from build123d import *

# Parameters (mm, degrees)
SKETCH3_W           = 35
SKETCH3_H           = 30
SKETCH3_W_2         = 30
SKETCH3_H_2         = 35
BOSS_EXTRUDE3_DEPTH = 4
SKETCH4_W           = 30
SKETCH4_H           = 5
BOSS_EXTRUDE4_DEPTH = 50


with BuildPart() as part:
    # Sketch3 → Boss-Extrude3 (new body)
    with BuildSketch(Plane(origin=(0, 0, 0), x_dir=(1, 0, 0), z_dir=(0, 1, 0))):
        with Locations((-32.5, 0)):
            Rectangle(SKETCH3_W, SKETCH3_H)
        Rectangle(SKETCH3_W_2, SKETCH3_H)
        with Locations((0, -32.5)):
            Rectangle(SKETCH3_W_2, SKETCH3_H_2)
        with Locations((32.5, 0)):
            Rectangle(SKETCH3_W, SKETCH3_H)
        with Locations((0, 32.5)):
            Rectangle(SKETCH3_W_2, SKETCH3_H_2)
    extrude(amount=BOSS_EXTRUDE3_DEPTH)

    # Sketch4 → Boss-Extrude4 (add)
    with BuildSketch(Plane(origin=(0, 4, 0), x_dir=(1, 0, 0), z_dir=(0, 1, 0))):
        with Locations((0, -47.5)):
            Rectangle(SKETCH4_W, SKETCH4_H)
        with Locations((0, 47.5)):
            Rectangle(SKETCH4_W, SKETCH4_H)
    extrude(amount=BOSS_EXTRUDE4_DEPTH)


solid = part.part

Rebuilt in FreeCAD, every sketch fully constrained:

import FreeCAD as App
import Part
import Sketcher

V = App.Vector


def add_polygon(sketch, points):
    """Adds a closed chain of lines whose ends are joined by coincident constraints."""
    first, n = sketch.GeometryCount, len(points)
    for a, b in zip(points, points[1:] + points[:1]):
        sketch.addGeometry(Part.LineSegment(App.Vector(*a, 0), App.Vector(*b, 0)), False)
    for i in range(n):
        sketch.addConstraint(Sketcher.Constraint("Coincident", first + i, 2, first + (i + 1) % n, 1))

doc = App.newDocument("Part")
body = doc.addObject("PartDesign::Body", "Body")

# Sketch on XZ plane
sketch1 = doc.addObject("Sketcher::SketchObject", "Sketch")
body.addObject(sketch1)
sketch1.AttachmentSupport = (doc.XZ_Plane, [""])
sketch1.MapMode = "FlatFace"
add_polygon(sketch1, [(-50, -15), (-50, 15), (-15, 15), (-15, 50), (15, 50), (15, 15), (50, 15), (50, -15), (15, -15), (15, -50), (-15, -50), (-15, -15)])  # lines 0-11
sketch1.addConstraint([
    Sketcher.Constraint("Vertical", 0),
    Sketcher.Constraint("Horizontal", 1),
    Sketcher.Constraint("Vertical", 2),
    Sketcher.Constraint("Horizontal", 3),
    Sketcher.Constraint("Vertical", 4),
    Sketcher.Constraint("Horizontal", 5),
    Sketcher.Constraint("Vertical", 6),
    Sketcher.Constraint("Horizontal", 7),
    Sketcher.Constraint("Vertical", 8),
    Sketcher.Constraint("Horizontal", 9),
    Sketcher.Constraint("Vertical", 10),
    Sketcher.Constraint("Horizontal", 11),
    Sketcher.Constraint("Symmetric", 0, 2, 6, 2, -1, 1),
    Sketcher.Constraint("Symmetric", 2, 2, 8, 2, -1, 1),
    Sketcher.Constraint("Symmetric", 4, 2, 10, 2, -1, 1),
    Sketcher.Constraint("Symmetric", 1, 2, 4, 2, -2),
    Sketcher.Constraint("Equal", 9, 0),
    Sketcher.Constraint("Equal", 11, 2),
    Sketcher.Constraint("DistanceX", 1, 1, 1, 2, 35.0),
    Sketcher.Constraint("DistanceX", 3, 1, 3, 2, 30.0),
])
pad1 = doc.addObject("PartDesign::Pad", "Pad")
body.addObject(pad1)
pad1.Profile = sketch1
pad1.Length = 4
pad1.Reversed = True

# Sketch on XZ plane
sketch2 = doc.addObject("Sketcher::SketchObject", "Sketch001")
body.addObject(sketch2)
sketch2.AttachmentSupport = (doc.XZ_Plane, [""])
sketch2.MapMode = "FlatFace"
sketch2.AttachmentOffset = App.Placement(V(0, 0, -4), App.Rotation())
add_polygon(sketch2, [(-15, 45), (-15, 50), (15, 50), (15, 45)])  # lines 0-3
add_polygon(sketch2, [(-15, -50), (-15, -45), (15, -45), (15, -50)])  # lines 4-7
sketch2.addConstraint([
    Sketcher.Constraint("Vertical", 0),
    Sketcher.Constraint("Horizontal", 1),
    Sketcher.Constraint("Vertical", 2),
    Sketcher.Constraint("Horizontal", 3),
    Sketcher.Constraint("Vertical", 4),
    Sketcher.Constraint("Horizontal", 5),
    Sketcher.Constraint("Vertical", 6),
    Sketcher.Constraint("Horizontal", 7),
    Sketcher.Constraint("Symmetric", 2, 2, 4, 2, -1, 1),
    Sketcher.Constraint("Symmetric", 0, 2, 6, 2, -1, 1),
    Sketcher.Constraint("Vertical", 3, 2, 4, 2),
    Sketcher.Constraint("DistanceX", 1, 1, 1, 2, 30.0),
    Sketcher.Constraint("DistanceY", 0, 1, 0, 2, 5.0),
    Sketcher.Constraint("DistanceY", -1, 1, 0, 2, 50.0),
])
pad2 = doc.addObject("PartDesign::Pad", "Pad001")
body.addObject(pad2)
pad2.Profile = sketch2
pad2.Length = 50
pad2.Reversed = True

doc.recompute()
